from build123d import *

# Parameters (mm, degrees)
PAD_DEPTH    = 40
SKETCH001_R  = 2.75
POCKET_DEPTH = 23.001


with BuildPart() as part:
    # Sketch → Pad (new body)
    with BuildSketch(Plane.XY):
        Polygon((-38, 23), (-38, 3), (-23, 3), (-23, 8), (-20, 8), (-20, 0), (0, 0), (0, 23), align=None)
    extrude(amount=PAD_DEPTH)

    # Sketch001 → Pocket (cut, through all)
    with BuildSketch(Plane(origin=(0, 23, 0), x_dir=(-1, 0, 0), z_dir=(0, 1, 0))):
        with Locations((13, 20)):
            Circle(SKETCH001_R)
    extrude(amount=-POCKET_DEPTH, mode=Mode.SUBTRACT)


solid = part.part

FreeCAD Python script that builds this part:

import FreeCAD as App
import Part
import Sketcher
from FreeCAD import Vector


def add_polygon(sketch, points):
    """Adds a closed chain of lines whose ends are joined by coincident constraints."""
    first, n = sketch.GeometryCount, len(points)
    for a, b in zip(points, points[1:] + points[:1]):
        sketch.addGeometry(Part.LineSegment(App.Vector(*a, 0), App.Vector(*b, 0)), False)
    for i in range(n):
        sketch.addConstraint(Sketcher.Constraint("Coincident", first + i, 2, first + (i + 1) % n, 1))

doc = App.newDocument("Part")
params = doc.addObject("Spreadsheet::Sheet", "Params")
for row, (alias, value) in enumerate([
    ("sketch1_width", "15 mm"),
    ("sketch1_width2", "3 mm"),
    ("sketch1_width3", "20 mm"),
    ("sketch1_height", "5 mm"),
    ("sketch1_height2", "8 mm"),
    ("pad1_length", "40 mm"),
    ("sketch2_diameter", "5.5 mm"),
], start=1):
    params.set(f"A{row}", alias)
    params.set(f"B{row}", "=" + value)
    params.setAlias(f"B{row}", alias)

body = doc.addObject("PartDesign::Body", "Body")

# Sketch on XY plane
sketch1 = doc.addObject("Sketcher::SketchObject", "Sketch")
body.addObject(sketch1)
sketch1.AttachmentSupport = (doc.XY_Plane, [""])
sketch1.MapMode = "FlatFace"
add_polygon(sketch1, [(-38, 23), (-38, 3), (-23, 3), (-23, 8), (-20, 8), (-20, 0), (0, 0), (0, 23)])  # lines 0-7
sketch1.addConstraint(Sketcher.Constraint("Vertical", 0))
sketch1.addConstraint(Sketcher.Constraint("Horizontal", 1))
sketch1.addConstraint(Sketcher.Constraint("Vertical", 2))
sketch1.addConstraint(Sketcher.Constraint("Horizontal", 3))
sketch1.addConstraint(Sketcher.Constraint("Vertical", 4))
sketch1.addConstraint(Sketcher.Constraint("Horizontal", 5))
sketch1.addConstraint(Sketcher.Constraint("Vertical", 6))
sketch1.addConstraint(Sketcher.Constraint("Horizontal", 7))
sketch1.addConstraint(Sketcher.Constraint("Coincident", 5, 2, -1, 1))
sketch1.addConstraint(Sketcher.Constraint("Equal", 5, 0))
sketch1.addConstraint(Sketcher.Constraint("DistanceX", 1, 1, 1, 2, 15.0))
sketch1.addConstraint(Sketcher.Constraint("DistanceX", 3, 1, 3, 2, 3.0))
sketch1.addConstraint(Sketcher.Constraint("DistanceX", 5, 1, 5, 2, 20.0))
sketch1.addConstraint(Sketcher.Constraint("DistanceY", 2, 1, 2, 2, 5.0))
sketch1.addConstraint(Sketcher.Constraint("DistanceY", 4, 2, 4, 1, 8.0))
sketch1.setExpression("Constraints[18]", "Params.sketch1_width")
sketch1.setExpression("Constraints[19]", "Params.sketch1_width2")
sketch1.setExpression("Constraints[20]", "Params.sketch1_width3")
sketch1.setExpression("Constraints[21]", "Params.sketch1_height")
sketch1.setExpression("Constraints[22]", "Params.sketch1_height2")
pad1 = doc.addObject("PartDesign::Pad", "Pad")
body.addObject(pad1)
pad1.Profile = sketch1
pad1.setExpression("Length", "Params.pad1_length")

# Sketch on XZ plane
sketch2 = doc.addObject("Sketcher::SketchObject", "Sketch001")
body.addObject(sketch2)
sketch2.AttachmentSupport = (doc.XZ_Plane, [""])
sketch2.MapMode = "FlatFace"
sketch2.AttachmentOffset = App.Placement(Vector(0, 0, -23), App.Rotation())
sketch2.addGeometry(Part.Circle(Vector(-13, 20, 0), Vector(0, 0, 1), 2.8), False)
sketch2.addConstraint(Sketcher.Constraint("Diameter", 0, 5.5))
sketch2.addConstraint(Sketcher.Constraint("DistanceX", 0, 3, -1, 1, 13.0))
sketch2.addConstraint(Sketcher.Constraint("DistanceY", -1, 1, 0, 3, 20.0))
sketch2.setExpression("Constraints[0]", "Params.sketch2_diameter")
pocket1 = doc.addObject("PartDesign::Pocket", "Pocket")
body.addObject(pocket1)
pocket1.Profile = sketch2
pocket1.Type = "ThroughAll"
pocket1.Reversed = True

doc.recompute()
